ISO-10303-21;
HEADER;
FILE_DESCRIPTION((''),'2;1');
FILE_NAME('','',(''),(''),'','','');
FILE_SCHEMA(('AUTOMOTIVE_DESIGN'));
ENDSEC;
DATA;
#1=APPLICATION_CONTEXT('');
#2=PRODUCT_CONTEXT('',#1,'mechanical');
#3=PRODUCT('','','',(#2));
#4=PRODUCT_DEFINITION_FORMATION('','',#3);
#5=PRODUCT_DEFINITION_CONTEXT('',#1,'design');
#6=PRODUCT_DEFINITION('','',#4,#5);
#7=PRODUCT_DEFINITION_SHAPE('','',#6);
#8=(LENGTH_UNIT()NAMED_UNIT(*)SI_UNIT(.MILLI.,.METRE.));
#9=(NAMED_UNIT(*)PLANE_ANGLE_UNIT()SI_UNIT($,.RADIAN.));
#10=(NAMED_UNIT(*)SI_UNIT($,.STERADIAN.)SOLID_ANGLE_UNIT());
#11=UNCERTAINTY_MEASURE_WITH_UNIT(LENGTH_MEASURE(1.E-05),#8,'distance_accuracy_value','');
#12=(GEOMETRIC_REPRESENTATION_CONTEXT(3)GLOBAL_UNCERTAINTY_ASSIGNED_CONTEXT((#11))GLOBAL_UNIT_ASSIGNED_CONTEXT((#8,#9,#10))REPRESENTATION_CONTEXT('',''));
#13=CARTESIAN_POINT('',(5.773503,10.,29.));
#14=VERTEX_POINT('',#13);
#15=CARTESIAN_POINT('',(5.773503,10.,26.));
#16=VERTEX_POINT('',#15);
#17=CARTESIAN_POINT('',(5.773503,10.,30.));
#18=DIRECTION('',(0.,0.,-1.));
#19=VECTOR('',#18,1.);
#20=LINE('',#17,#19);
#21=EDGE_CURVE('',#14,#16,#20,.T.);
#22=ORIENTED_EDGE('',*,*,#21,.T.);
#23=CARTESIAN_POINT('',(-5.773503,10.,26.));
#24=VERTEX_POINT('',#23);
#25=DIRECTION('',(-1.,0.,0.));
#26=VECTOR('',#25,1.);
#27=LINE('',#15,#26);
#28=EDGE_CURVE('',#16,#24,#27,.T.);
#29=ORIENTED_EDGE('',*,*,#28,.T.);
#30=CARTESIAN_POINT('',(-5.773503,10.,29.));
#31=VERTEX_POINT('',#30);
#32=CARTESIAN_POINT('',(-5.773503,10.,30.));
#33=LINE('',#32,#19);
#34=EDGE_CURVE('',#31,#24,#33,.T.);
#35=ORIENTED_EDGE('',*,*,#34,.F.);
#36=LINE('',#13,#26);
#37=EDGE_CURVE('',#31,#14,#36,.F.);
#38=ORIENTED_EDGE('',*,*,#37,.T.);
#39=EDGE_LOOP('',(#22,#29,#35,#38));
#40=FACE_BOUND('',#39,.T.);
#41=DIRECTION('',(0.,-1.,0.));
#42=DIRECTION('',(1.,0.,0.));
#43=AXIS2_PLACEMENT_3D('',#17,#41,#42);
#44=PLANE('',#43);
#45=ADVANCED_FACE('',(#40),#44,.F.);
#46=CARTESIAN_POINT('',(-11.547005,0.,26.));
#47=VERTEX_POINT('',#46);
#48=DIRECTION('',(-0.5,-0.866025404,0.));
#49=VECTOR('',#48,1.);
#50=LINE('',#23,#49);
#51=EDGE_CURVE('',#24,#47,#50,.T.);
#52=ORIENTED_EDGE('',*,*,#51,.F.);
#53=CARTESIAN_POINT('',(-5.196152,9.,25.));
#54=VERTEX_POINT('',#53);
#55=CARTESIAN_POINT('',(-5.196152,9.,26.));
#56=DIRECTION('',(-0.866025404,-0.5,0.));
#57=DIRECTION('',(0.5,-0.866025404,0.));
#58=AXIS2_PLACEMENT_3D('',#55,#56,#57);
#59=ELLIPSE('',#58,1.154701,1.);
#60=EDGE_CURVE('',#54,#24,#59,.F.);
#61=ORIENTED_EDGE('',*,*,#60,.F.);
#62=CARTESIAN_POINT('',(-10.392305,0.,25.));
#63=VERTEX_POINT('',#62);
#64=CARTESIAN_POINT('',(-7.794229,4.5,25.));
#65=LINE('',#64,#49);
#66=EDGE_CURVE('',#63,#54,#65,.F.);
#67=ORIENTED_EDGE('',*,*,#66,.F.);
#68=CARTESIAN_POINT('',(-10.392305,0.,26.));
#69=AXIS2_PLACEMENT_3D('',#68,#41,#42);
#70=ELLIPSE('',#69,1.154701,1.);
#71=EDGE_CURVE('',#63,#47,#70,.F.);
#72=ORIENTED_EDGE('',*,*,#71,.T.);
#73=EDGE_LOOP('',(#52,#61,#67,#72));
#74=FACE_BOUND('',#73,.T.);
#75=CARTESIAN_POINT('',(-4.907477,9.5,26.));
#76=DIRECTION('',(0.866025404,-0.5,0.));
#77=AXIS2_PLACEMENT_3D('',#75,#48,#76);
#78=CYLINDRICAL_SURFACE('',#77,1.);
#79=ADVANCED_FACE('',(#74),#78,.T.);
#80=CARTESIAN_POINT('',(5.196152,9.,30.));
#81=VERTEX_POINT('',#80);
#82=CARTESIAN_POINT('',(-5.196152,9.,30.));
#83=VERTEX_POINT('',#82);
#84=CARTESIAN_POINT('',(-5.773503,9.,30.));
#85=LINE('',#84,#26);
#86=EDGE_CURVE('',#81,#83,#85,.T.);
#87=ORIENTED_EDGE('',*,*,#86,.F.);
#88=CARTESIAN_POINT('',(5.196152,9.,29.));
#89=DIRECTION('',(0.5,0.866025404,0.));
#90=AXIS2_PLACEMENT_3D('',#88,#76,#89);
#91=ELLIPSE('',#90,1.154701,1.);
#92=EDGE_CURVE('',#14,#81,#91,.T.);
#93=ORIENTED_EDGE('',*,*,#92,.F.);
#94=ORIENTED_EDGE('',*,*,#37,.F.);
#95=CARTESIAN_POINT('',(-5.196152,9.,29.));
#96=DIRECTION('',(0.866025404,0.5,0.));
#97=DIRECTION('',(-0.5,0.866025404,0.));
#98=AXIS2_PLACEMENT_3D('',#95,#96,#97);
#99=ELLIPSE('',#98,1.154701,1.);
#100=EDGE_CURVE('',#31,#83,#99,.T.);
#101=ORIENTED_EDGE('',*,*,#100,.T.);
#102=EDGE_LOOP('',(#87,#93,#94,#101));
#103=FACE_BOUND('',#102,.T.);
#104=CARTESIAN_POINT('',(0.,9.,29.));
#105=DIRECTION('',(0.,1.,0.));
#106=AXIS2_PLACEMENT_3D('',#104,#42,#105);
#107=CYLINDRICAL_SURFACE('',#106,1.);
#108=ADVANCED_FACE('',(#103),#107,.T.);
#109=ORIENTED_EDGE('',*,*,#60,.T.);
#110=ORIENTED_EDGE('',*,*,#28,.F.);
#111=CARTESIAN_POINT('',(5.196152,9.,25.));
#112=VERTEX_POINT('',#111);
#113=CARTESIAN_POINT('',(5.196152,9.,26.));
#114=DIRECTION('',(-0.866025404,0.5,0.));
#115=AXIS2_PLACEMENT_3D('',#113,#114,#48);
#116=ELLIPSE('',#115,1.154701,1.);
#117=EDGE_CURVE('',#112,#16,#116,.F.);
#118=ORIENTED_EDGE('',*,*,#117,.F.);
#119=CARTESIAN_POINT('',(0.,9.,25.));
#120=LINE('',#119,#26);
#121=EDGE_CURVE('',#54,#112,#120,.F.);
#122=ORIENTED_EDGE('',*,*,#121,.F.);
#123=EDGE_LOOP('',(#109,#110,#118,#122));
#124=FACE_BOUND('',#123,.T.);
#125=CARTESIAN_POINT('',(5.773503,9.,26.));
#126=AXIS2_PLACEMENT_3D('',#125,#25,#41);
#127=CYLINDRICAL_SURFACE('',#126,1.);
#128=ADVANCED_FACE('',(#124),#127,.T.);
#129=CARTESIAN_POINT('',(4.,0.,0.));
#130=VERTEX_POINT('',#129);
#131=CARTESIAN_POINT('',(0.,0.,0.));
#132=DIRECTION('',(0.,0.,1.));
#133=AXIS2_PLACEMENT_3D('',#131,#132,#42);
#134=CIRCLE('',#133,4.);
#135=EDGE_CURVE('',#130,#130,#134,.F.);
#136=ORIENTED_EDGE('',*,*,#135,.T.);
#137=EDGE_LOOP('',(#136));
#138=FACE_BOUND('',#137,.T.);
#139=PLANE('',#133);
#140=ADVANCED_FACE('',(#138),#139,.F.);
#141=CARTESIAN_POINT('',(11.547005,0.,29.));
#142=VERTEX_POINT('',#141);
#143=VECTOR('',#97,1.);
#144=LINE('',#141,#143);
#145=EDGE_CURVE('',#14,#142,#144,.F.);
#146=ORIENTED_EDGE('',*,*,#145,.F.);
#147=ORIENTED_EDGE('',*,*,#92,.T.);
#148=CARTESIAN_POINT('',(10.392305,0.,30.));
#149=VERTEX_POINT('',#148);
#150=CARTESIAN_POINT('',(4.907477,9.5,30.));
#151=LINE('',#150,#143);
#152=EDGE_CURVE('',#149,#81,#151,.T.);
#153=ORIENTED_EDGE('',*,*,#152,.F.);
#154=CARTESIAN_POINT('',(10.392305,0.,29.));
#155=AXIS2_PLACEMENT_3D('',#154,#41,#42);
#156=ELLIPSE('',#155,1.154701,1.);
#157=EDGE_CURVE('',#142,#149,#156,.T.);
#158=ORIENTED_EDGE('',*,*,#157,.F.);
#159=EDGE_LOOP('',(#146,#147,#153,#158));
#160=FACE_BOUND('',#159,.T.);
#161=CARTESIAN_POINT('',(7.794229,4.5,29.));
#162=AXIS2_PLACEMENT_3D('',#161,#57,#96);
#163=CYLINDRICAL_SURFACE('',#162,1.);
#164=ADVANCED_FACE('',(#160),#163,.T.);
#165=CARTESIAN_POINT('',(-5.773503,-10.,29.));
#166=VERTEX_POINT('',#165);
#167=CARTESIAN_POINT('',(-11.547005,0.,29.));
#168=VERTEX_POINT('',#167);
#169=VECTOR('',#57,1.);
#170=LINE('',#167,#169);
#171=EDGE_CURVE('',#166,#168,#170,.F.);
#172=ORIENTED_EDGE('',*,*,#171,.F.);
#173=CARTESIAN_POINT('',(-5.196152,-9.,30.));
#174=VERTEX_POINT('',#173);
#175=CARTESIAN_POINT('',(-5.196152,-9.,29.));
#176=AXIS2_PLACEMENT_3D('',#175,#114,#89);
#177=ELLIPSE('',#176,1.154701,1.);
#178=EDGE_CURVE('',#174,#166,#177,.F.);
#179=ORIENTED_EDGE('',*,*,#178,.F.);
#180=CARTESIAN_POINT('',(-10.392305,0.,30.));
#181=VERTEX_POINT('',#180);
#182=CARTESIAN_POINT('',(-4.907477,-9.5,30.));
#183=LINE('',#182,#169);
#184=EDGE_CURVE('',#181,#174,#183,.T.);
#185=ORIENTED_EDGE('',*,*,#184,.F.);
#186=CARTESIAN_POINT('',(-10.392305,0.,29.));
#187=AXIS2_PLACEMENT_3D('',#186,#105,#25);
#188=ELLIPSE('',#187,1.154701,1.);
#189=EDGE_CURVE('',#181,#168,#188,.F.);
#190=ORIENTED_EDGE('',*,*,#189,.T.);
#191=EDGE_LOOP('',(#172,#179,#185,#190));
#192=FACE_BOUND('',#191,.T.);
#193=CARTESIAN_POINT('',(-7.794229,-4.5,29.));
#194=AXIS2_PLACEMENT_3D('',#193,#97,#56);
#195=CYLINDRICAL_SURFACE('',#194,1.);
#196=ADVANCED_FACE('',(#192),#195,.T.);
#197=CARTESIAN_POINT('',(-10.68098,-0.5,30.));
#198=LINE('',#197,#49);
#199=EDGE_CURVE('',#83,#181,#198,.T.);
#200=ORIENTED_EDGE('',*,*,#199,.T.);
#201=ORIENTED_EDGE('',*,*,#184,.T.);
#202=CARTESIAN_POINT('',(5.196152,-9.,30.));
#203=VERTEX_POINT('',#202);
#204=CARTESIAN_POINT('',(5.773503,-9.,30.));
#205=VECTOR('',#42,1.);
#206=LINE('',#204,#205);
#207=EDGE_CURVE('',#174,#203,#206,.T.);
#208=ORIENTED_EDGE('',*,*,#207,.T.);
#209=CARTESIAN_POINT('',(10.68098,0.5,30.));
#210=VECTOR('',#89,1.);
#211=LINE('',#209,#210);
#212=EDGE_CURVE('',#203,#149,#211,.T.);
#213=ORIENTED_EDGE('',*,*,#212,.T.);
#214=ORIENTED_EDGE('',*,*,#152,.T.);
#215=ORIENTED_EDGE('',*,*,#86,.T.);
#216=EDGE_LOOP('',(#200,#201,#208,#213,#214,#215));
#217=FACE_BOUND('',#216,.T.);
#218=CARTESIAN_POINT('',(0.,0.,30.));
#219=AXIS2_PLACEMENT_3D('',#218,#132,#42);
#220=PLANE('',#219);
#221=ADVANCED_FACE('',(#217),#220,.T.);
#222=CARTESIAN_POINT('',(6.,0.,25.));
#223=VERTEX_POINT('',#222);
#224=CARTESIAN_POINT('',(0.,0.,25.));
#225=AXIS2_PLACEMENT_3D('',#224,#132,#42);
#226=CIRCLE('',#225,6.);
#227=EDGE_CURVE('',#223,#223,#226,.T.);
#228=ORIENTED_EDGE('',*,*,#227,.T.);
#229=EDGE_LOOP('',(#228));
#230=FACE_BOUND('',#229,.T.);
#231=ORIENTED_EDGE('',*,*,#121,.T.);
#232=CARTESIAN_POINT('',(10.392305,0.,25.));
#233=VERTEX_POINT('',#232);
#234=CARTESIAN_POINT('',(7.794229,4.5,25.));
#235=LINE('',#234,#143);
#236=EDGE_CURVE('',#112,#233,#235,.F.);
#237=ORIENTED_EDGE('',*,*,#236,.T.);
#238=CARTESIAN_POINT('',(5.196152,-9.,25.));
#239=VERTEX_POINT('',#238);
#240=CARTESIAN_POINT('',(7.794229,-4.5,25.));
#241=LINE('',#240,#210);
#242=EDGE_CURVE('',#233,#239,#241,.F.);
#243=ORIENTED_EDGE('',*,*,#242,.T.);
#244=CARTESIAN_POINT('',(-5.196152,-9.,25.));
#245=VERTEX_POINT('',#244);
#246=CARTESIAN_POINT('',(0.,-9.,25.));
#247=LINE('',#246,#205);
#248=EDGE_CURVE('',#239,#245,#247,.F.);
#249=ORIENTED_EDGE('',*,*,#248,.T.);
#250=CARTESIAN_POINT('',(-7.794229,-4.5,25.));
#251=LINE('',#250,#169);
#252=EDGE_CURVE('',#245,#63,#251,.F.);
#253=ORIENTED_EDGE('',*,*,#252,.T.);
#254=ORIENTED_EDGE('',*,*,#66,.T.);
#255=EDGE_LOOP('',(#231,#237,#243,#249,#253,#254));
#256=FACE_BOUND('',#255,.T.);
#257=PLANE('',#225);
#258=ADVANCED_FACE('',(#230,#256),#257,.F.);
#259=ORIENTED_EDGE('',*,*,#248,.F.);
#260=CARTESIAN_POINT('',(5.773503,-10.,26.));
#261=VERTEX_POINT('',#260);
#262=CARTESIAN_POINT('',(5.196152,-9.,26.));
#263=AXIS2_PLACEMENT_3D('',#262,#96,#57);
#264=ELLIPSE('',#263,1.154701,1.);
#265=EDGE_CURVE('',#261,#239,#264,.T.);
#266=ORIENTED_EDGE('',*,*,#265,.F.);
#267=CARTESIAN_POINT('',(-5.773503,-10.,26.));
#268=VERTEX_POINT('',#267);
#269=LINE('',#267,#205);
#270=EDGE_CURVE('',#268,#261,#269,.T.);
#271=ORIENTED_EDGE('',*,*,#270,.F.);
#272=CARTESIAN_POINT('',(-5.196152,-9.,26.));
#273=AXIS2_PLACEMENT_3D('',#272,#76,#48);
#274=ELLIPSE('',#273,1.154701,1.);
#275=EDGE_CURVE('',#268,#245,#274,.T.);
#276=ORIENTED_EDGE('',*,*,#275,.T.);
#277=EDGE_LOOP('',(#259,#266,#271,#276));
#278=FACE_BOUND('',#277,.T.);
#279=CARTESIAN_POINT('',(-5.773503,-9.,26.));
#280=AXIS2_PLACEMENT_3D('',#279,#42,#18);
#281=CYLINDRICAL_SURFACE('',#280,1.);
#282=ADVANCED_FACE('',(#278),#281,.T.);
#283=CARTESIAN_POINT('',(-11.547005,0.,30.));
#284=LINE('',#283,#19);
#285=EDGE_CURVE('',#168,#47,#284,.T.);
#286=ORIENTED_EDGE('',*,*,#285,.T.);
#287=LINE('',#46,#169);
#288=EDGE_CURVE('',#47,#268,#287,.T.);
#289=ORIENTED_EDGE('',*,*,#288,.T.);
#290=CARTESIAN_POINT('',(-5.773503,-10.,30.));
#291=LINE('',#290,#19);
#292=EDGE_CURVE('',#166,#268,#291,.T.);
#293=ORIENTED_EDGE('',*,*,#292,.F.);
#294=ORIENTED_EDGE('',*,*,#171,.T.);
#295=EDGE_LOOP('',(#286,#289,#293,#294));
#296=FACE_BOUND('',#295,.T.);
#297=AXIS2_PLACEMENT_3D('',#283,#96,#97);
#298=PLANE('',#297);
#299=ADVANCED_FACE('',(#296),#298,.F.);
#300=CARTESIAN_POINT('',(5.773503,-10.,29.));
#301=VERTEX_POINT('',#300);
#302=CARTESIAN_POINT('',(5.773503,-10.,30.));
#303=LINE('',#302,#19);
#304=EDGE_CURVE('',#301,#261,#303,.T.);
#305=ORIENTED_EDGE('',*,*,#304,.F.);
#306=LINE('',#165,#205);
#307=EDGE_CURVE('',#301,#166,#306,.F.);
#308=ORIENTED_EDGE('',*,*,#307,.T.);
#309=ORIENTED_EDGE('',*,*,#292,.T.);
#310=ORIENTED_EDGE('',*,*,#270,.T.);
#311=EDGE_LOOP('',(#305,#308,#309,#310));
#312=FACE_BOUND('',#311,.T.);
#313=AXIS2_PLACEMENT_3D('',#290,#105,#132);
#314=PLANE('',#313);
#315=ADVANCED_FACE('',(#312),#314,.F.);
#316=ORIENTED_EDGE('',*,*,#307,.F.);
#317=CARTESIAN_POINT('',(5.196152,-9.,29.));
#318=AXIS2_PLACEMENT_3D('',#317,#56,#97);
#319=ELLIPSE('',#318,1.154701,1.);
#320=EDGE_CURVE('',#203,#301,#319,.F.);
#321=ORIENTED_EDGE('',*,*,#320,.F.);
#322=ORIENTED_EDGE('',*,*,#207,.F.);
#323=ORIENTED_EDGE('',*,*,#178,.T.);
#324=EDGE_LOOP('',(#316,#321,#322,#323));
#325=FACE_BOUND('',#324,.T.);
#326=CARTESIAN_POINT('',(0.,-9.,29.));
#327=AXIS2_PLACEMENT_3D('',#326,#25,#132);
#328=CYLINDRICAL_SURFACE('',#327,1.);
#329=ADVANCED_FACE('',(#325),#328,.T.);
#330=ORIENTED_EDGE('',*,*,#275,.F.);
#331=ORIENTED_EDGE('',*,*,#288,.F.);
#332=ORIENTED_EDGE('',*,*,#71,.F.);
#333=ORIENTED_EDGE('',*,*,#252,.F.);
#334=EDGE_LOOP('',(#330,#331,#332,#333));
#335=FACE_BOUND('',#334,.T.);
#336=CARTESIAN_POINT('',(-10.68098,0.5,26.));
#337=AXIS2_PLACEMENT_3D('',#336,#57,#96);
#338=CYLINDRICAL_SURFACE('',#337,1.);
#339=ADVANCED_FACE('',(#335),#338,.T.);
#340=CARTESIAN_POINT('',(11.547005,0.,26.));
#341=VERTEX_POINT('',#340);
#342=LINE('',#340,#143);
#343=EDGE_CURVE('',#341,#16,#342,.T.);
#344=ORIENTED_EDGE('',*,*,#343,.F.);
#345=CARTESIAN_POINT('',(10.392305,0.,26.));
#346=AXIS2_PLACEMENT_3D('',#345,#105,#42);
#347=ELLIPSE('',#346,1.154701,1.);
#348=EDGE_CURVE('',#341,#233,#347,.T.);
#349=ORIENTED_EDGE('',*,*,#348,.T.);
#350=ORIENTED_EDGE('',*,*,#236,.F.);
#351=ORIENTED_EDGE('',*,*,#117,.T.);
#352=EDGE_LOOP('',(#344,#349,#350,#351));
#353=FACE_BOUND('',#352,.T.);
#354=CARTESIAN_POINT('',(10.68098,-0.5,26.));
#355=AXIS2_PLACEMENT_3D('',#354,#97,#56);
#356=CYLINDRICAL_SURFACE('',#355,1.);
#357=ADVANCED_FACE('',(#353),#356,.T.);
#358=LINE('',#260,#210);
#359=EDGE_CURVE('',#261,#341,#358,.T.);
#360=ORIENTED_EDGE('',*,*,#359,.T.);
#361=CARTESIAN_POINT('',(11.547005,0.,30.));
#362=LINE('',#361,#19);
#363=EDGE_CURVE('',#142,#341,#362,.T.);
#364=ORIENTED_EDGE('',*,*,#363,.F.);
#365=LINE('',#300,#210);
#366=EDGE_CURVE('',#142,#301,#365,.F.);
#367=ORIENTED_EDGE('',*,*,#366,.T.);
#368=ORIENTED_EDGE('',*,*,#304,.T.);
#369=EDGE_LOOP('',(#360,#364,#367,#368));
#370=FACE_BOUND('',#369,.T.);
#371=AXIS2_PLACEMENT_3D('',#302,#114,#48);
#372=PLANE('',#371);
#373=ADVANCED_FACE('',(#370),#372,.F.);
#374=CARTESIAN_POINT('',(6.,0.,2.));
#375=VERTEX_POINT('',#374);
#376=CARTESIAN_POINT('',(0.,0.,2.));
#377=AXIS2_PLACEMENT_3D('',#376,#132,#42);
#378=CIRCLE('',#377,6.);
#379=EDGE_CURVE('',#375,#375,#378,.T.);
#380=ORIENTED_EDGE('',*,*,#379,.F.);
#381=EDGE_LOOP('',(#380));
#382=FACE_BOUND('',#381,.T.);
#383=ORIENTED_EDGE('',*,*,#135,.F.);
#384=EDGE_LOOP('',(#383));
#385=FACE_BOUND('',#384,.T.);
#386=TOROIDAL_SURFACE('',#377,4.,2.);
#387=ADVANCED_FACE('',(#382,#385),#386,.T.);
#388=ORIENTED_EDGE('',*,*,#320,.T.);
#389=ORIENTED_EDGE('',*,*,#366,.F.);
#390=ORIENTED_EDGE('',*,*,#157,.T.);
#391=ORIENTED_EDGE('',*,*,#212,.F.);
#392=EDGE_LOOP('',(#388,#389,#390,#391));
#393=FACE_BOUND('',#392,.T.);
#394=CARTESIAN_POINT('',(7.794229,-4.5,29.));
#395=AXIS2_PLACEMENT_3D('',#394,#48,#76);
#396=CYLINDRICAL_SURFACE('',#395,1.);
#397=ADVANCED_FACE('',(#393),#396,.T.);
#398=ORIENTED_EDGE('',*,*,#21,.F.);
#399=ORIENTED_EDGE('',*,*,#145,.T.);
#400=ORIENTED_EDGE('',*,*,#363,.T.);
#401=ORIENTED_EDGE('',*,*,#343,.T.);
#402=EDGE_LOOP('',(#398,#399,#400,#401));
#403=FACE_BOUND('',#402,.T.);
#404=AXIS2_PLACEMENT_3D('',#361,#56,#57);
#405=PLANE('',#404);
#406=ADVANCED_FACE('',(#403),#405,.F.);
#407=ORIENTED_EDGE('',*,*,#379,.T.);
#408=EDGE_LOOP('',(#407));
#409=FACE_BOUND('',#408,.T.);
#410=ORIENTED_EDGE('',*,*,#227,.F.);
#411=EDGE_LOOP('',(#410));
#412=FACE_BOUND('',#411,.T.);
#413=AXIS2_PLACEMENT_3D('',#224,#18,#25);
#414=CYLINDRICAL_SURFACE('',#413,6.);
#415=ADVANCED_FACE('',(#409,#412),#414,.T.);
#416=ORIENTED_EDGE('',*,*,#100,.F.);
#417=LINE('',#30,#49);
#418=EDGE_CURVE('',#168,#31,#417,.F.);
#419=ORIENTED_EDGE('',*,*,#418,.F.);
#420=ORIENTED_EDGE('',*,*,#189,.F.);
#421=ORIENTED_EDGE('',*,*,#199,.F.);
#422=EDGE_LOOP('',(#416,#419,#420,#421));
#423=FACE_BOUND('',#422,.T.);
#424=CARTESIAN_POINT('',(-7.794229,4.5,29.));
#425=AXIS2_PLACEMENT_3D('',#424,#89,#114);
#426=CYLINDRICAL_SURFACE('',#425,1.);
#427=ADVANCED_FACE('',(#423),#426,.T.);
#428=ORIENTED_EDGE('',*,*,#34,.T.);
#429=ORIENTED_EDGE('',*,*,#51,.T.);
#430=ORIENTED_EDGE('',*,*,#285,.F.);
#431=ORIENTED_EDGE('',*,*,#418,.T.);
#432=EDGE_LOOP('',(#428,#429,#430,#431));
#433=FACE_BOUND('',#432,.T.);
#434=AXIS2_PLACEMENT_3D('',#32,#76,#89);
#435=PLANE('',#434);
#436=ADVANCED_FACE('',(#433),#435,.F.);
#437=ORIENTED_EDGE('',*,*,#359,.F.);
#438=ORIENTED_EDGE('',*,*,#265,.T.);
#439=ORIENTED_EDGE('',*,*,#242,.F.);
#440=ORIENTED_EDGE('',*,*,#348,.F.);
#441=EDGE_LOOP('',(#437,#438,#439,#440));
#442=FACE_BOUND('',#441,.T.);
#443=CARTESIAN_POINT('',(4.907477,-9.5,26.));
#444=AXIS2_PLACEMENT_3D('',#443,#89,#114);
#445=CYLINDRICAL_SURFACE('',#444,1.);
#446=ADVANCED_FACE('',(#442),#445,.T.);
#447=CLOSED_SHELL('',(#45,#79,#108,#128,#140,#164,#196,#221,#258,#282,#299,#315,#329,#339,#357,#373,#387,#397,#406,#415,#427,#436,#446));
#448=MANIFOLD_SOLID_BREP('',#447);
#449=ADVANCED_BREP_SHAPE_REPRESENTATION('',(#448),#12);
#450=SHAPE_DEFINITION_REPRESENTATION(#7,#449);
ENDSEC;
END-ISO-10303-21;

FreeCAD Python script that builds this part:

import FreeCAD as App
import Part
import Sketcher
from FreeCAD import Vector
Q = App.Units.Quantity


def edges_at(feature, points):
    """Names of the edges that pass closest to the given points."""
    edges = feature.Shape.Edges
    near = lambda p: min(range(len(edges)), key=lambda i: edges[i].distToShape(Part.Vertex(*p))[0])
    return sorted({f"Edge{near(p) + 1}" for p in points})

doc = App.newDocument("Part")
params = doc.addObject("Spreadsheet::Sheet", "Params")
for row, (alias, value) in enumerate([
    ("sketch1_diameter", "12 mm"),
    ("pad1_length", "25 mm"),
    ("pad2_length", "5 mm"),
    ("fillet_radius", "2 mm"),
    ("fillet2_radius", "1 mm"),
], start=1):
    params.set(f"A{row}", alias)
    params.set(f"B{row}", "=" + value)
    params.setAlias(f"B{row}", alias)

body = doc.addObject("PartDesign::Body", "Body")

# Sketch on XY plane
sketch1 = doc.addObject("Sketcher::SketchObject", "Sketch")
body.addObject(sketch1)
sketch1.AttachmentSupport = (doc.XY_Plane, [""])
sketch1.MapMode = "FlatFace"
sketch1.addGeometry(Part.Circle(Vector(0, 0, 0), Vector(0, 0, 1), 6), False)
sketch1.addConstraint([
    Sketcher.Constraint("Coincident", 0, 3, -1, 1),
    Sketcher.Constraint("Diameter", 0, 12.0),
])
sketch1.setExpression("Constraints[1]", "Params.sketch1_diameter")
pad1 = doc.addObject("PartDesign::Pad", "Pad")
body.addObject(pad1)
pad1.Profile = sketch1
pad1.setExpression("Length", "Params.pad1_length")

# Sketch on XY plane
sketch2 = doc.addObject("Sketcher::SketchObject", "Sketch001")
body.addObject(sketch2)
sketch2.AttachmentSupport = (doc.XY_Plane, [""])
sketch2.MapMode = "FlatFace"
sketch2.AttachmentOffset = App.Placement(Vector(0, 0, 25), App.Rotation())
sketch2.addGeometry([
    Part.LineSegment(Vector(6, -10, 0), Vector(12, 0, 0)),  # 0
    Part.LineSegment(Vector(12, 0, 0), Vector(6, 10, 0)),  # 1
    Part.LineSegment(Vector(6, 10, 0), Vector(-6, 10, 0)),  # 2
    Part.LineSegment(Vector(-6, 10, 0), Vector(-12, 0, 0)),  # 3
    Part.LineSegment(Vector(-12, 0, 0), Vector(-6, -10, 0)),  # 4
    Part.LineSegment(Vector(-6, -10, 0), Vector(6, -10, 0)),  # 5
], False)
sketch2.addConstraint([
    Sketcher.Constraint("Coincident", 0, 2, 1, 1),
    Sketcher.Constraint("Coincident", 1, 2, 2, 1),
    Sketcher.Constraint("Coincident", 2, 2, 3, 1),
    Sketcher.Constraint("Coincident", 3, 2, 4, 1),
    Sketcher.Constraint("Coincident", 4, 2, 5, 1),
    Sketcher.Constraint("Coincident", 5, 2, 0, 1),
    Sketcher.Constraint("Horizontal", 2),
    Sketcher.Constraint("Horizontal", 5),
    Sketcher.Constraint("Symmetric", 0, 2, 3, 2, -1, 1),
    Sketcher.Constraint("Symmetric", 1, 2, 4, 2, -1, 1),
    Sketcher.Constraint("PointOnObject", 0, 2, -1),
    Sketcher.Constraint("Parallel", 0, 3),
    Sketcher.Constraint("Vertical", 2, 2, 4, 2),
    Sketcher.Constraint("Angle", 0, Q("60 deg")),
    Sketcher.Constraint("DistanceY", -1, 1, 1, 2, 10.0),
    Sketcher.Constraint("DistanceX", 2, 2, 2, 1, 11.547005),
])
pad2 = doc.addObject("PartDesign::Pad", "Pad001")
body.addObject(pad2)
pad2.Profile = sketch2
pad2.setExpression("Length", "Params.pad2_length")
doc.recompute()

fillet = doc.addObject("PartDesign::Fillet", "Fillet")
body.addObject(fillet)
fillet.Base = (pad2, edges_at(pad2, [(-6, 0, 0)]))
fillet.setExpression("Radius", "Params.fillet_radius")
doc.recompute()

fillet2 = doc.addObject("PartDesign::Fillet", "Fillet001")
body.addObject(fillet2)
fillet2.Base = (fillet, edges_at(fillet, [
    (0, -10, 25),
    (8.66, -5, 25),
    (8.66, 5, 25),
    (0, 10, 25),
    (-8.66, 5, 25),
    (-8.66, -5, 25),
    (0, -10, 30),
    (8.66, -5, 30),
    (8.66, 5, 30),
    (0, 10, 30),
    (-8.66, 5, 30),
    (-8.66, -5, 30),
]))
fillet2.setExpression("Radius", "Params.fillet2_radius")

doc.recompute()
